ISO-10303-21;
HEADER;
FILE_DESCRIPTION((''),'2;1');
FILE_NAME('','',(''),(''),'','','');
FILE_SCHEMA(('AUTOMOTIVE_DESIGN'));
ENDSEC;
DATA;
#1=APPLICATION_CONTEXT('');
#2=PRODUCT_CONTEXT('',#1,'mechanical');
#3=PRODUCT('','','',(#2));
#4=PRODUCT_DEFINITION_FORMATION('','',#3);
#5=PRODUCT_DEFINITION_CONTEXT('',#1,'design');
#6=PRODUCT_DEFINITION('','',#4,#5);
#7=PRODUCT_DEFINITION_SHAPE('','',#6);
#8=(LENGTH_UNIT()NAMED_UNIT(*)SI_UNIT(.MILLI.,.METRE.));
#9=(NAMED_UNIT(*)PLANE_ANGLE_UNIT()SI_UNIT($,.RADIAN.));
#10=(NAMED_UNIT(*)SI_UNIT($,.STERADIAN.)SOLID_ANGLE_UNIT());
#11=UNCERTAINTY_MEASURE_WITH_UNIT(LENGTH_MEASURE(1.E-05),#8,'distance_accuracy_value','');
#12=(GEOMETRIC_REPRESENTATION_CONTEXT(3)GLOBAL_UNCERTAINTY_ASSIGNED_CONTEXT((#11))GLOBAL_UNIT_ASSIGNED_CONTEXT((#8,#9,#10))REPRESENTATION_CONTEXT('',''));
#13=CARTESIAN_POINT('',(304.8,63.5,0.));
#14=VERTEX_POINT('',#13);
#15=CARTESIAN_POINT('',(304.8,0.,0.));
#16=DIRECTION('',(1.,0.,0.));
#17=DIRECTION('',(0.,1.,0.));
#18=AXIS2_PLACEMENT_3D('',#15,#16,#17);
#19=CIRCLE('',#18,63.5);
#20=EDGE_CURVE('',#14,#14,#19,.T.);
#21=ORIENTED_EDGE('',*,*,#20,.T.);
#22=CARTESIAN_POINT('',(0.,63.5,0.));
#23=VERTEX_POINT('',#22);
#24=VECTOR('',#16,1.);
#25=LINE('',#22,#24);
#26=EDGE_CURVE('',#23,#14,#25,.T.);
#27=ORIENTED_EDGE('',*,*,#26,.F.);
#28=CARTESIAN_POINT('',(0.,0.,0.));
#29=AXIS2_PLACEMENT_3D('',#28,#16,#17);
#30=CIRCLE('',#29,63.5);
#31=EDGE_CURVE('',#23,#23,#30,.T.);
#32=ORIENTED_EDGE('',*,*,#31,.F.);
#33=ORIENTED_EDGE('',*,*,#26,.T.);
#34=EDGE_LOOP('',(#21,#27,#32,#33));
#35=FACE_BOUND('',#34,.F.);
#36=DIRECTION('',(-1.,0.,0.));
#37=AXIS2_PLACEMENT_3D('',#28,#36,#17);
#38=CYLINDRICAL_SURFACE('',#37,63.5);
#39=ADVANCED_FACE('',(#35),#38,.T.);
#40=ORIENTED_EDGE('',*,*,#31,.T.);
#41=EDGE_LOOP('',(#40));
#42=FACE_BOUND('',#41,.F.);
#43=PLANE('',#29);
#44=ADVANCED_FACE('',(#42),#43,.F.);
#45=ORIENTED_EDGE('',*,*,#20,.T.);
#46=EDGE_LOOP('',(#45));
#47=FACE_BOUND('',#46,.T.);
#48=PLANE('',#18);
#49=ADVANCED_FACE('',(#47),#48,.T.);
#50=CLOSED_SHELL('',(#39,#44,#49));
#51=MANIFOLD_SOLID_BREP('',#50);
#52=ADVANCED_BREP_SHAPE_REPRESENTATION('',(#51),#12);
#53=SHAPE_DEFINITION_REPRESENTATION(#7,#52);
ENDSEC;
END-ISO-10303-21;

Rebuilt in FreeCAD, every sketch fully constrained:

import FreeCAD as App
import Part
import Sketcher
Q = App.Units.Quantity

doc = App.newDocument("Part")
body = doc.addObject("PartDesign::Body", "Body")

# Sketch on YZ plane
sketch1 = body.newObject("Sketcher::SketchObject", "Sketch")
sketch1.AttachmentSupport = (doc.getObject("YZ_Plane"), [""])
sketch1.MapMode = "FlatFace"
sketch1.addGeometry(Part.Circle(App.Vector(0, 0, 0), App.Vector(0, 0, 1), 63.5), False)
sketch1.addConstraint(Sketcher.Constraint("Coincident", 0, 3, -1, 1))
sketch1.addConstraint(Sketcher.Constraint("Diameter", 0, Q("5 in")))
pad1 = body.newObject("PartDesign::Pad", "Pad")
pad1.Profile = sketch1
pad1.Length = Q("12 in")

doc.recompute()
